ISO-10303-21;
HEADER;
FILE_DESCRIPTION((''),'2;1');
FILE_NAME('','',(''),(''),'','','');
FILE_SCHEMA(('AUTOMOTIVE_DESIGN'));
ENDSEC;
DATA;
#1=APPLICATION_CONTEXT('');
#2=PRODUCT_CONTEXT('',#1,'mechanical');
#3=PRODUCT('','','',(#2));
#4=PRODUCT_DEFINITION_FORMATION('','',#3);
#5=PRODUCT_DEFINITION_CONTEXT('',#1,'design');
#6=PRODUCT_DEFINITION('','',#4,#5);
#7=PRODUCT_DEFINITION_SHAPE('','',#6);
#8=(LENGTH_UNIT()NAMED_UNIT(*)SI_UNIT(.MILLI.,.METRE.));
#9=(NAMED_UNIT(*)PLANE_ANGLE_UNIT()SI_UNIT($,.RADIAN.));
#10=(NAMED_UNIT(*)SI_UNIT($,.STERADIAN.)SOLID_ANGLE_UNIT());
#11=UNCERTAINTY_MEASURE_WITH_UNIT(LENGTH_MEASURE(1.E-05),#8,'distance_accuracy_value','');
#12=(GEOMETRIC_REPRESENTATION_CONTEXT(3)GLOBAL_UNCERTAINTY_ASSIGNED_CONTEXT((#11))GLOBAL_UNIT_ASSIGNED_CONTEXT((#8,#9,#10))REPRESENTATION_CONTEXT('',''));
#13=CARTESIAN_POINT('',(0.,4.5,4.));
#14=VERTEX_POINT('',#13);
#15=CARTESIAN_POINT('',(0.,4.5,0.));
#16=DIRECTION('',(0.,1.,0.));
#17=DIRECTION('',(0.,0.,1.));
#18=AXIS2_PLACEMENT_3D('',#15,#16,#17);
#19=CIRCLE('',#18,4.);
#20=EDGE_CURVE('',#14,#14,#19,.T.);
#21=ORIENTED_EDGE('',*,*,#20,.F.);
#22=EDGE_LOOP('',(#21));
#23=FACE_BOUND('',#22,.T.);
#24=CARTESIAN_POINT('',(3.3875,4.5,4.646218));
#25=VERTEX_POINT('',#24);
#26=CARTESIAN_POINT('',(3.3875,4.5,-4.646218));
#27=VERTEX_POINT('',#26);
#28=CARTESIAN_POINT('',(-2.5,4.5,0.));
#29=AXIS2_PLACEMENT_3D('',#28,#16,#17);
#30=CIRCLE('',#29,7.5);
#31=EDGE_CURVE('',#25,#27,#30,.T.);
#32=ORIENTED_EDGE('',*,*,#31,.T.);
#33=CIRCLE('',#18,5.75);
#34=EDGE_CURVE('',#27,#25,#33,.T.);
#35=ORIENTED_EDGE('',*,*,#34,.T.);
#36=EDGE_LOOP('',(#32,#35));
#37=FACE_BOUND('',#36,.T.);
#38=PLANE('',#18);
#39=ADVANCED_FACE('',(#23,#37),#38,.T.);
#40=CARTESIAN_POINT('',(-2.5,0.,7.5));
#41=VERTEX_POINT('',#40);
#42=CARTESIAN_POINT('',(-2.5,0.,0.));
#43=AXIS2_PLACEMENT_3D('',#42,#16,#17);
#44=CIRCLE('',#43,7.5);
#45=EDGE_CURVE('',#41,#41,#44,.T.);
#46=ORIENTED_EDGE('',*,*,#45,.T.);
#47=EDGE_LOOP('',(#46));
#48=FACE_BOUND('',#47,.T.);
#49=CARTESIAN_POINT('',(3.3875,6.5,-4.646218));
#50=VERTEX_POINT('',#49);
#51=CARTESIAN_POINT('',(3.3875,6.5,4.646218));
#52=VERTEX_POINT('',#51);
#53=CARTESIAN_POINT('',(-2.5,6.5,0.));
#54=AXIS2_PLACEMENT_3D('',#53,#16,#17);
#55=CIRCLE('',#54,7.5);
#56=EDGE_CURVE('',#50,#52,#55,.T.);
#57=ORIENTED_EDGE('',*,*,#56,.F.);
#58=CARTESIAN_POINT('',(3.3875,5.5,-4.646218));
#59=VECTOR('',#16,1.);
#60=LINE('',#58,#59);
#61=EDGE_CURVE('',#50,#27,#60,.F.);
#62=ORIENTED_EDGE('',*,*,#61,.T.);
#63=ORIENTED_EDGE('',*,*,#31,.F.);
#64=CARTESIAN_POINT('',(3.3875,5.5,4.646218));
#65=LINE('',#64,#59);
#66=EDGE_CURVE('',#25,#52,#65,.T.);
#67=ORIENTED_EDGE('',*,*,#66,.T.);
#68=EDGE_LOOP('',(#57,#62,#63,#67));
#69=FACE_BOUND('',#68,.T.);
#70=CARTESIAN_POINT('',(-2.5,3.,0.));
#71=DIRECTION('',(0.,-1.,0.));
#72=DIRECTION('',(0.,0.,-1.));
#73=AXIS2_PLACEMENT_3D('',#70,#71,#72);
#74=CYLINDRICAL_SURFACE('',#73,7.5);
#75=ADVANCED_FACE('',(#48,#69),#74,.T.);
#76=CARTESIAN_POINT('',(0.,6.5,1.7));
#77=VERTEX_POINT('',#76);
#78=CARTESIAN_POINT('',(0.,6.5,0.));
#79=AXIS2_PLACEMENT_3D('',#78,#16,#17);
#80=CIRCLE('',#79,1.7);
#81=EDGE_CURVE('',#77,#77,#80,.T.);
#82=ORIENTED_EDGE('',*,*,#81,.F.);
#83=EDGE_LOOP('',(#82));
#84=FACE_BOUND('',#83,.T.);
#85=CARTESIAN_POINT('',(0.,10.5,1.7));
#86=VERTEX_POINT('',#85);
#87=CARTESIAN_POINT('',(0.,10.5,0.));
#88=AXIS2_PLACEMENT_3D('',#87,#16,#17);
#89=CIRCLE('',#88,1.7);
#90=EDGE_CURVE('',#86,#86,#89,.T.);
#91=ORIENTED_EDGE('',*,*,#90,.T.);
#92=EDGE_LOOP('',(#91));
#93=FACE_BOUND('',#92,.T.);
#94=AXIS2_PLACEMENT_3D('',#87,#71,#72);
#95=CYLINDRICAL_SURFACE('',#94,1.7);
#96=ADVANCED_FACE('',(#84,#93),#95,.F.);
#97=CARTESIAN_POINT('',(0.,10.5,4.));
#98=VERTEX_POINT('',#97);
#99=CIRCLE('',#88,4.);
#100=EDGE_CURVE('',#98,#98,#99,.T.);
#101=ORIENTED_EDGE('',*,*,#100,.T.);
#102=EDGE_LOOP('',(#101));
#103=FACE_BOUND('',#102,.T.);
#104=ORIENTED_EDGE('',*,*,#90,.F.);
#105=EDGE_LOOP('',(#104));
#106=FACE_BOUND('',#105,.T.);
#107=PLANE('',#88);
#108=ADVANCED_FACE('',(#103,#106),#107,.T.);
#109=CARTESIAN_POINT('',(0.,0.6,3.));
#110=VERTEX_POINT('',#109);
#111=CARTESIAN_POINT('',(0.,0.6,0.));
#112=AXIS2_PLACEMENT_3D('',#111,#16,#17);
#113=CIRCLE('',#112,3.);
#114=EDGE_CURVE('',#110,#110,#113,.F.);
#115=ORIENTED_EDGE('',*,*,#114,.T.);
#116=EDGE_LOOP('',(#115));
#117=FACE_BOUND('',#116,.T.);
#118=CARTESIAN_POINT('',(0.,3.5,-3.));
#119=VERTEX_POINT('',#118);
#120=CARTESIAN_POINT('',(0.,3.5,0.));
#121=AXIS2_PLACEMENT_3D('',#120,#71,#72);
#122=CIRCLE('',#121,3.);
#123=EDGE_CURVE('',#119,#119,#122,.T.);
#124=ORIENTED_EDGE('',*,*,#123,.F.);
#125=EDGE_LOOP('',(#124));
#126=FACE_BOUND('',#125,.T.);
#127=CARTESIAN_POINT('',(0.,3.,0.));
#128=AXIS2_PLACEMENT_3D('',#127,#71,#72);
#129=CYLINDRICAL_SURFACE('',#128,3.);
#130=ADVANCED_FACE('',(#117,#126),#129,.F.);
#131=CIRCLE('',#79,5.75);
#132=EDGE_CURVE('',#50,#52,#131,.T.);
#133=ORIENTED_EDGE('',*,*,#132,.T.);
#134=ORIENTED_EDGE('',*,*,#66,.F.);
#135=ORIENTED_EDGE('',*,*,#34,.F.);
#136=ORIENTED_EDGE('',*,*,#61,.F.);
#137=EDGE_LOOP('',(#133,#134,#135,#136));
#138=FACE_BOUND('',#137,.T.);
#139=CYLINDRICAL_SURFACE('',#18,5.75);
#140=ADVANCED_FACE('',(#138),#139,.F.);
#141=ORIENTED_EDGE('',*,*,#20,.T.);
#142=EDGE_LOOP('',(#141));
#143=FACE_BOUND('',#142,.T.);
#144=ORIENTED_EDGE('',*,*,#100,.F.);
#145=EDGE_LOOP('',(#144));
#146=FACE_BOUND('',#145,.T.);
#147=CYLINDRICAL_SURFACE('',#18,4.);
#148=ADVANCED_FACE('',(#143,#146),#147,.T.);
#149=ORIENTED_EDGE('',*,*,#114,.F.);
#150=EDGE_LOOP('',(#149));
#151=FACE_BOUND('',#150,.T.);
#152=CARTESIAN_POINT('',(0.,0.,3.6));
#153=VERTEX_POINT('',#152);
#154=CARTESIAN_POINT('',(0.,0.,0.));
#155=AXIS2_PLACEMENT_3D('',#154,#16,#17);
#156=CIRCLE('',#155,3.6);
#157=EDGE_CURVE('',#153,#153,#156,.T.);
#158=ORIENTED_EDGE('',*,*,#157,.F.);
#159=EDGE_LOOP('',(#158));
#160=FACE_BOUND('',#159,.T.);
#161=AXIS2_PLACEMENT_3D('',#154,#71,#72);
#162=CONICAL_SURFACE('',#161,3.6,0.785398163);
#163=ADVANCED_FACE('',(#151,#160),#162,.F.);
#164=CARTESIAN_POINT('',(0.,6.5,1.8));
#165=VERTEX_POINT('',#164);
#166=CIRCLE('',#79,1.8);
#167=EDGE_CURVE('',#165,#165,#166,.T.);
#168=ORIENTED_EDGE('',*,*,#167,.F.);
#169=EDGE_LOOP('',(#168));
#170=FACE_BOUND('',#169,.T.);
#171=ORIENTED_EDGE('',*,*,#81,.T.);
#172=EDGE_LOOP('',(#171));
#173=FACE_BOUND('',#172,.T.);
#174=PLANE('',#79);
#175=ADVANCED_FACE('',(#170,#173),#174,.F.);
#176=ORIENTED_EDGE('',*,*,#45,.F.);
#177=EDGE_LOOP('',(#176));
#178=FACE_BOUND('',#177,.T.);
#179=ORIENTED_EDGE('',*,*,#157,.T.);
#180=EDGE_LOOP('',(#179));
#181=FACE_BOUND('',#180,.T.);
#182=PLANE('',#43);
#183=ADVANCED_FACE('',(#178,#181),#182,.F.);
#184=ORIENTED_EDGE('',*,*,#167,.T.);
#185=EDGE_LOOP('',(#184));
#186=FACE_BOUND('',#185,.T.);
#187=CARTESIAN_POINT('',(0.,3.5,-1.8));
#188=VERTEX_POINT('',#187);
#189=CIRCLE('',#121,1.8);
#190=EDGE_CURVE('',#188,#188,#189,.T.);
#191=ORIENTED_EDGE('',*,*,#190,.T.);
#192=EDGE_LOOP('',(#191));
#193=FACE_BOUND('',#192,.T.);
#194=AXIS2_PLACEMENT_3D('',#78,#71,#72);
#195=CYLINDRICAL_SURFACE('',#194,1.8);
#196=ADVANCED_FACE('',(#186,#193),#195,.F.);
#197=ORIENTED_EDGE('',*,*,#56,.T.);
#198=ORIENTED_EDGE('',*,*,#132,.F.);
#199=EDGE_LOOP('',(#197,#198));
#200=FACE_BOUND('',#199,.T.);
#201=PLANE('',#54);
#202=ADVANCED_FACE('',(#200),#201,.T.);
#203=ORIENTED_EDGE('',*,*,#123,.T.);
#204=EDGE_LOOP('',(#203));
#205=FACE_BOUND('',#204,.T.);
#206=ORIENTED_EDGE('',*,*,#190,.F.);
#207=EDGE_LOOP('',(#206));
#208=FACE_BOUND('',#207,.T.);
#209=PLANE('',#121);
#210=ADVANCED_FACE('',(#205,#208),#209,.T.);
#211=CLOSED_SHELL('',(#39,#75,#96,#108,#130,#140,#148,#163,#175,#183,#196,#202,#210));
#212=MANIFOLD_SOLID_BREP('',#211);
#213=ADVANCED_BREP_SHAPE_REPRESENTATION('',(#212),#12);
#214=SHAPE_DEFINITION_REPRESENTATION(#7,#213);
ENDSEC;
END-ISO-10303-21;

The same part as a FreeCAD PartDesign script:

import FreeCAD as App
import Part
import Sketcher


def edges_at(feature, points):
    """Names of the edges that pass closest to the given points."""
    edges = feature.Shape.Edges
    near = lambda p: min(range(len(edges)), key=lambda i: edges[i].distToShape(Part.Vertex(*p))[0])
    return sorted({f"Edge{near(p) + 1}" for p in points})

doc = App.newDocument("Part")
body = doc.addObject("PartDesign::Body", "Body")

# Sketch on XZ plane
sketch1 = doc.addObject("Sketcher::SketchObject", "Sketch")
body.addObject(sketch1)
sketch1.AttachmentSupport = (doc.XZ_Plane, [""])
sketch1.MapMode = "FlatFace"
sketch1.addGeometry(Part.Circle(App.Vector(-2.5, 0, 0), App.Vector(0, 0, 1), 7.5), False)
sketch1.addGeometry(Part.Circle(App.Vector(0, 0, 0), App.Vector(0, 0, 1), 3), False)
sketch1.addConstraint(Sketcher.Constraint("Coincident", 1, 3, -1, 1))
sketch1.addConstraint(Sketcher.Constraint("PointOnObject", 0, 3, -1))
sketch1.addConstraint(Sketcher.Constraint("Diameter", 0, 15.0))
sketch1.addConstraint(Sketcher.Constraint("Diameter", 1, 6.0))
sketch1.addConstraint(Sketcher.Constraint("DistanceX", 0, 3, -1, 1, 2.5))
pad1 = doc.addObject("PartDesign::Pad", "Pad")
body.addObject(pad1)
pad1.Profile = sketch1
pad1.Length = 3
pad1.Reversed = True

# Sketch on XZ plane
sketch2 = doc.addObject("Sketcher::SketchObject", "Sketch001")
body.addObject(sketch2)
sketch2.AttachmentSupport = (doc.XZ_Plane, [""])
sketch2.MapMode = "FlatFace"
sketch2.AttachmentOffset = App.Placement(App.Vector(0, 0, -3), App.Rotation())
sketch2.addGeometry(Part.Circle(App.Vector(-2.5, 0, 0), App.Vector(0, 0, 1), 7.5), False)
sketch2.addGeometry(Part.Circle(App.Vector(0, 0, 0), App.Vector(0, 0, 1), 1.8), False)
sketch2.addConstraint(Sketcher.Constraint("Coincident", 1, 3, -1, 1))
sketch2.addConstraint(Sketcher.Constraint("PointOnObject", 0, 3, -1))
sketch2.addConstraint(Sketcher.Constraint("Diameter", 0, 15.0))
sketch2.addConstraint(Sketcher.Constraint("Diameter", 1, 3.6))
sketch2.addConstraint(Sketcher.Constraint("DistanceX", 0, 3, -1, 1, 2.5))
pad2 = doc.addObject("PartDesign::Pad", "Pad001")
body.addObject(pad2)
pad2.Profile = sketch2
pad2.Length = 3.5
pad2.Reversed = True

# Sketch on XZ plane
sketch3 = doc.addObject("Sketcher::SketchObject", "Sketch002")
body.addObject(sketch3)
sketch3.AttachmentSupport = (doc.XZ_Plane, [""])
sketch3.MapMode = "FlatFace"
sketch3.AttachmentOffset = App.Placement(App.Vector(0, 0, -6.5), App.Rotation())
sketch3.addGeometry(Part.Circle(App.Vector(0, 0, 0), App.Vector(0, 0, 1), 5.8), False)
sketch3.addGeometry(Part.Circle(App.Vector(0, 0, 0), App.Vector(0, 0, 1), 4), False)
sketch3.addConstraint(Sketcher.Constraint("Coincident", 0, 3, -1, 1))
sketch3.addConstraint(Sketcher.Constraint("Coincident", 1, 3, -1, 1))
sketch3.addConstraint(Sketcher.Constraint("Diameter", 1, 8.0))
sketch3.addConstraint(Sketcher.Constraint("Diameter", 0, 11.5))
pocket1 = doc.addObject("PartDesign::Pocket", "Pocket")
body.addObject(pocket1)
pocket1.Profile = sketch3
pocket1.Length = 2
pocket1.Reversed = True

# Sketch on XZ plane
sketch4 = doc.addObject("Sketcher::SketchObject", "Sketch003")
body.addObject(sketch4)
sketch4.AttachmentSupport = (doc.XZ_Plane, [""])
sketch4.MapMode = "FlatFace"
sketch4.AttachmentOffset = App.Placement(App.Vector(0, 0, -6.5), App.Rotation())
sketch4.addGeometry(Part.Circle(App.Vector(0, 0, 0), App.Vector(0, 0, 1), 4), False)
sketch4.addGeometry(Part.Circle(App.Vector(0, 0, 0), App.Vector(0, 0, 1), 1.7), False)
sketch4.addConstraint(Sketcher.Constraint("Coincident", 0, 3, -1, 1))
sketch4.addConstraint(Sketcher.Constraint("Coincident", 1, 3, -1, 1))
sketch4.addConstraint(Sketcher.Constraint("Diameter", 0, 8.0))
sketch4.addConstraint(Sketcher.Constraint("Diameter", 1, 3.4))
pad3 = doc.addObject("PartDesign::Pad", "Pad002")
body.addObject(pad3)
pad3.Profile = sketch4
pad3.Length = 4
pad3.Reversed = True

# Sketch on XZ plane
sketch5 = doc.addObject("Sketcher::SketchObject", "Sketch004")
body.addObject(sketch5)
sketch5.AttachmentSupport = (doc.XZ_Plane, [""])
sketch5.MapMode = "FlatFace"
sketch5.addGeometry(Part.Circle(App.Vector(0, 0, 0), App.Vector(0, 0, 1), 3), False)
sketch5.addConstraint(Sketcher.Constraint("Coincident", 0, 3, -1, 1))
sketch5.addConstraint(Sketcher.Constraint("Diameter", 0, 6.0))
pocket2 = doc.addObject("PartDesign::Pocket", "Pocket001")
body.addObject(pocket2)
pocket2.Profile = sketch5
pocket2.Length = 3.5
doc.recompute()

chamfer = doc.addObject("PartDesign::Chamfer", "Chamfer")
body.addObject(chamfer)
chamfer.Base = (pocket2, edges_at(pocket2, [(-3, 0, 0)]))
chamfer.Size = 0.6

doc.recompute()
